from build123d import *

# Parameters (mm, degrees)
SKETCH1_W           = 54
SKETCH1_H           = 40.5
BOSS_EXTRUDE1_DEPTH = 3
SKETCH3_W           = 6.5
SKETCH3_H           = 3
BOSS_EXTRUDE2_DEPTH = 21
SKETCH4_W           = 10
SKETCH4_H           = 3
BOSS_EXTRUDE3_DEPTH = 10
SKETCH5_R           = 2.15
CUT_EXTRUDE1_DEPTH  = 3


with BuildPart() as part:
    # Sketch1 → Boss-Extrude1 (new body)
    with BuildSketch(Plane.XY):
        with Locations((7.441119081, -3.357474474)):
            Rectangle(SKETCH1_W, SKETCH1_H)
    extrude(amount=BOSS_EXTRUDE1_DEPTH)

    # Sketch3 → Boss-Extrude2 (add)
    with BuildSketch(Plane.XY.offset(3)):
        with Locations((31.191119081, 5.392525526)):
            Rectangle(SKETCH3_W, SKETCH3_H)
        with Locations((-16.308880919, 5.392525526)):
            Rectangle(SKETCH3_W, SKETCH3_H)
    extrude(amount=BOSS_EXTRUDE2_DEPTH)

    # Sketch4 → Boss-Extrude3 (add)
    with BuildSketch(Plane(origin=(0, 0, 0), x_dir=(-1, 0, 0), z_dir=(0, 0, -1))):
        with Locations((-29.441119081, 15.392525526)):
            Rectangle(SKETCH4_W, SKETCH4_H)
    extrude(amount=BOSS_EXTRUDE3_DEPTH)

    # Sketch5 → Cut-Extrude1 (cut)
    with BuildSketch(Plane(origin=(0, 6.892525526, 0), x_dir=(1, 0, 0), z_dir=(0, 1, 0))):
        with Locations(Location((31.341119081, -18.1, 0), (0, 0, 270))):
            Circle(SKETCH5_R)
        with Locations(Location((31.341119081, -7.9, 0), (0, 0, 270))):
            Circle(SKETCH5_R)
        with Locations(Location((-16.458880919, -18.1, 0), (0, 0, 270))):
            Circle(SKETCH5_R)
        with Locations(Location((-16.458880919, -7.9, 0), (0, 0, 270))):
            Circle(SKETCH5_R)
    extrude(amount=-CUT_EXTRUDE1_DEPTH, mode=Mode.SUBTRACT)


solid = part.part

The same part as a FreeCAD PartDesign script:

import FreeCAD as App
import Part
import Sketcher
from FreeCAD import Vector

doc = App.newDocument("Part")
body = doc.addObject("PartDesign::Body", "Body")

sketch1 = body.newObject("Sketcher::SketchObject", "Sketch")
sketch1.AttachmentSupport = (doc.getObject("XY_Plane"), [""])
sketch1.MapMode = "FlatFace"
sketch1.addGeometry(Part.LineSegment(Vector(-20, 17, 0), Vector(-20, -24, 0)), False)
sketch1.addGeometry(Part.LineSegment(Vector(-20, -24, 0), Vector(34, -24, 0)), False)
sketch1.addGeometry(Part.LineSegment(Vector(34, -24, 0), Vector(34, 17, 0)), False)
sketch1.addGeometry(Part.LineSegment(Vector(34, 17, 0), Vector(-20, 17, 0)), False)
sketch1.addConstraint(Sketcher.Constraint("Coincident", 0, 2, 1, 1))
sketch1.addConstraint(Sketcher.Constraint("Coincident", 1, 2, 2, 1))
sketch1.addConstraint(Sketcher.Constraint("Coincident", 2, 2, 3, 1))
sketch1.addConstraint(Sketcher.Constraint("Coincident", 3, 2, 0, 1))
sketch1.addConstraint(Sketcher.Constraint("Vertical", 0))
sketch1.addConstraint(Sketcher.Constraint("Horizontal", 1))
sketch1.addConstraint(Sketcher.Constraint("Vertical", 2))
sketch1.addConstraint(Sketcher.Constraint("Horizontal", 3))
sketch1.addConstraint(Sketcher.Constraint("DistanceX", 1, 1, 1, 2, 54.0))
sketch1.addConstraint(Sketcher.Constraint("DistanceY", 0, 2, 0, 1, 40.5))
sketch1.addConstraint(Sketcher.Constraint("DistanceX", 0, 2, -1, 1, 19.558881))
sketch1.addConstraint(Sketcher.Constraint("DistanceY", 0, 2, -1, 1, 23.607474))
pad1 = body.newObject("PartDesign::Pad", "Pad")
pad1.Profile = sketch1
pad1.Length = 3

sketch2 = body.newObject("Sketcher::SketchObject", "Sketch001")
sketch2.AttachmentSupport = (doc.getObject("XY_Plane"), [""])
sketch2.MapMode = "FlatFace"
sketch2.AttachmentOffset = App.Placement(Vector(0, 0, 3), App.Rotation())
sketch2.addGeometry(Part.LineSegment(Vector(27.9, 6.9, 0), Vector(27.9, 3.9, 0)), False)
sketch2.addGeometry(Part.LineSegment(Vector(27.9, 3.9, 0), Vector(34.4, 3.9, 0)), False)
sketch2.addGeometry(Part.LineSegment(Vector(34.4, 3.9, 0), Vector(34.4, 6.9, 0)), False)
sketch2.addGeometry(Part.LineSegment(Vector(34.4, 6.9, 0), Vector(27.9, 6.9, 0)), False)
sketch2.addGeometry(Part.LineSegment(Vector(-19.6, 6.9, 0), Vector(-19.6, 3.9, 0)), False)
sketch2.addGeometry(Part.LineSegment(Vector(-19.6, 3.9, 0), Vector(-13.1, 3.9, 0)), False)
sketch2.addGeometry(Part.LineSegment(Vector(-13.1, 3.9, 0), Vector(-13.1, 6.9, 0)), False)
sketch2.addGeometry(Part.LineSegment(Vector(-13.1, 6.9, 0), Vector(-19.6, 6.9, 0)), False)
sketch2.addConstraint(Sketcher.Constraint("Coincident", 0, 2, 1, 1))
sketch2.addConstraint(Sketcher.Constraint("Coincident", 1, 2, 2, 1))
sketch2.addConstraint(Sketcher.Constraint("Coincident", 2, 2, 3, 1))
sketch2.addConstraint(Sketcher.Constraint("Coincident", 3, 2, 0, 1))
sketch2.addConstraint(Sketcher.Constraint("Coincident", 4, 2, 5, 1))
sketch2.addConstraint(Sketcher.Constraint("Coincident", 5, 2, 6, 1))
sketch2.addConstraint(Sketcher.Constraint("Coincident", 6, 2, 7, 1))
sketch2.addConstraint(Sketcher.Constraint("Coincident", 7, 2, 4, 1))
sketch2.addConstraint(Sketcher.Constraint("Vertical", 0))
sketch2.addConstraint(Sketcher.Constraint("Horizontal", 1))
sketch2.addConstraint(Sketcher.Constraint("Vertical", 2))
sketch2.addConstraint(Sketcher.Constraint("Horizontal", 3))
sketch2.addConstraint(Sketcher.Constraint("Vertical", 4))
sketch2.addConstraint(Sketcher.Constraint("Horizontal", 5))
sketch2.addConstraint(Sketcher.Constraint("Vertical", 6))
sketch2.addConstraint(Sketcher.Constraint("Horizontal", 7))
sketch2.addConstraint(Sketcher.Constraint("Horizontal", 1, 2, 4, 2))
sketch2.addConstraint(Sketcher.Constraint("Horizontal", 3, 2, 6, 2))
sketch2.addConstraint(Sketcher.Constraint("Equal", 3, 5))
sketch2.addConstraint(Sketcher.Constraint("DistanceY", 0, 2, 0, 1, 3.0))
sketch2.addConstraint(Sketcher.Constraint("DistanceX", 1, 1, 1, 2, 6.5))
sketch2.addConstraint(Sketcher.Constraint("DistanceX", 4, 2, 1, 2, 54.0))
sketch2.addConstraint(Sketcher.Constraint("DistanceX", -1, 1, 0, 2, 27.941119))
sketch2.addConstraint(Sketcher.Constraint("DistanceY", -1, 1, 0, 2, 3.892526))
pad2 = body.newObject("PartDesign::Pad", "Pad001")
pad2.Profile = sketch2
pad2.Length = 21

sketch3 = body.newObject("Sketcher::SketchObject", "Sketch002")
sketch3.AttachmentSupport = (doc.getObject("XY_Plane"), [""])
sketch3.MapMode = "FlatFace"
sketch3.addGeometry(Part.LineSegment(Vector(34.4, 16.9, 0), Vector(34.4, 13.9, 0)), False)
sketch3.addGeometry(Part.LineSegment(Vector(34.4, 13.9, 0), Vector(24.4, 13.9, 0)), False)
sketch3.addGeometry(Part.LineSegment(Vector(24.4, 13.9, 0), Vector(24.4, 16.9, 0)), False)
sketch3.addGeometry(Part.LineSegment(Vector(24.4, 16.9, 0), Vector(34.4, 16.9, 0)), False)
sketch3.addConstraint(Sketcher.Constraint("Coincident", 0, 2, 1, 1))
sketch3.addConstraint(Sketcher.Constraint("Coincident", 1, 2, 2, 1))
sketch3.addConstraint(Sketcher.Constraint("Coincident", 2, 2, 3, 1))
sketch3.addConstraint(Sketcher.Constraint("Coincident", 3, 2, 0, 1))
sketch3.addConstraint(Sketcher.Constraint("Vertical", 0))
sketch3.addConstraint(Sketcher.Constraint("Horizontal", 1))
sketch3.addConstraint(Sketcher.Constraint("Vertical", 2))
sketch3.addConstraint(Sketcher.Constraint("Horizontal", 3))
sketch3.addConstraint(Sketcher.Constraint("DistanceX", 1, 2, 1, 1, 10.0))
sketch3.addConstraint(Sketcher.Constraint("DistanceY", 0, 2, 0, 1, 3.0))
sketch3.addConstraint(Sketcher.Constraint("DistanceX", -1, 1, 0, 2, 34.441119))
sketch3.addConstraint(Sketcher.Constraint("DistanceY", -1, 1, 0, 2, 13.892526))
pad3 = body.newObject("PartDesign::Pad", "Pad002")
pad3.Profile = sketch3
pad3.Length = 10
pad3.Reversed = True

sketch4 = body.newObject("Sketcher::SketchObject", "Sketch003")
sketch4.AttachmentSupport = (doc.getObject("XZ_Plane"), [""])
sketch4.MapMode = "FlatFace"
sketch4.AttachmentOffset = App.Placement(Vector(0, 0, -6.892526), App.Rotation())
sketch4.addGeometry(Part.Circle(Vector(31.3, 18.1, 0), Vector(0, 0, 1), 2.1), False)
sketch4.addGeometry(Part.Circle(Vector(31.3, 7.9, 0), Vector(0, 0, 1), 2.1), False)
sketch4.addGeometry(Part.Circle(Vector(-16.5, 18.1, 0), Vector(0, 0, 1), 2.1), False)
sketch4.addGeometry(Part.Circle(Vector(-16.5, 7.9, 0), Vector(0, 0, 1), 2.1), False)
sketch4.addConstraint(Sketcher.Constraint("Equal", 0, 1))
sketch4.addConstraint(Sketcher.Constraint("Equal", 1, 2))
sketch4.addConstraint(Sketcher.Constraint("Equal", 2, 3))
sketch4.addConstraint(Sketcher.Constraint("Horizontal", 0, 3, 2, 3))
sketch4.addConstraint(Sketcher.Constraint("Horizontal", 1, 3, 3, 3))
sketch4.addConstraint(Sketcher.Constraint("Vertical", 0, 3, 1, 3))
sketch4.addConstraint(Sketcher.Constraint("Vertical", 2, 3, 3, 3))
sketch4.addConstraint(Sketcher.Constraint("Diameter", 0, 4.3))
sketch4.addConstraint(Sketcher.Constraint("DistanceY", -1, 1, 0, 3, 18.1))
sketch4.addConstraint(Sketcher.Constraint("DistanceY", -1, 1, 1, 3, 7.9))
sketch4.addConstraint(Sketcher.Constraint("DistanceX", 2, 3, 0, 3, 47.8))
sketch4.addConstraint(Sketcher.Constraint("DistanceX", -1, 1, 0, 3, 31.341119))
pocket1 = body.newObject("PartDesign::Pocket", "Pocket")
pocket1.Profile = sketch4
pocket1.Length = 3
pocket1.Reversed = True

doc.recompute()
